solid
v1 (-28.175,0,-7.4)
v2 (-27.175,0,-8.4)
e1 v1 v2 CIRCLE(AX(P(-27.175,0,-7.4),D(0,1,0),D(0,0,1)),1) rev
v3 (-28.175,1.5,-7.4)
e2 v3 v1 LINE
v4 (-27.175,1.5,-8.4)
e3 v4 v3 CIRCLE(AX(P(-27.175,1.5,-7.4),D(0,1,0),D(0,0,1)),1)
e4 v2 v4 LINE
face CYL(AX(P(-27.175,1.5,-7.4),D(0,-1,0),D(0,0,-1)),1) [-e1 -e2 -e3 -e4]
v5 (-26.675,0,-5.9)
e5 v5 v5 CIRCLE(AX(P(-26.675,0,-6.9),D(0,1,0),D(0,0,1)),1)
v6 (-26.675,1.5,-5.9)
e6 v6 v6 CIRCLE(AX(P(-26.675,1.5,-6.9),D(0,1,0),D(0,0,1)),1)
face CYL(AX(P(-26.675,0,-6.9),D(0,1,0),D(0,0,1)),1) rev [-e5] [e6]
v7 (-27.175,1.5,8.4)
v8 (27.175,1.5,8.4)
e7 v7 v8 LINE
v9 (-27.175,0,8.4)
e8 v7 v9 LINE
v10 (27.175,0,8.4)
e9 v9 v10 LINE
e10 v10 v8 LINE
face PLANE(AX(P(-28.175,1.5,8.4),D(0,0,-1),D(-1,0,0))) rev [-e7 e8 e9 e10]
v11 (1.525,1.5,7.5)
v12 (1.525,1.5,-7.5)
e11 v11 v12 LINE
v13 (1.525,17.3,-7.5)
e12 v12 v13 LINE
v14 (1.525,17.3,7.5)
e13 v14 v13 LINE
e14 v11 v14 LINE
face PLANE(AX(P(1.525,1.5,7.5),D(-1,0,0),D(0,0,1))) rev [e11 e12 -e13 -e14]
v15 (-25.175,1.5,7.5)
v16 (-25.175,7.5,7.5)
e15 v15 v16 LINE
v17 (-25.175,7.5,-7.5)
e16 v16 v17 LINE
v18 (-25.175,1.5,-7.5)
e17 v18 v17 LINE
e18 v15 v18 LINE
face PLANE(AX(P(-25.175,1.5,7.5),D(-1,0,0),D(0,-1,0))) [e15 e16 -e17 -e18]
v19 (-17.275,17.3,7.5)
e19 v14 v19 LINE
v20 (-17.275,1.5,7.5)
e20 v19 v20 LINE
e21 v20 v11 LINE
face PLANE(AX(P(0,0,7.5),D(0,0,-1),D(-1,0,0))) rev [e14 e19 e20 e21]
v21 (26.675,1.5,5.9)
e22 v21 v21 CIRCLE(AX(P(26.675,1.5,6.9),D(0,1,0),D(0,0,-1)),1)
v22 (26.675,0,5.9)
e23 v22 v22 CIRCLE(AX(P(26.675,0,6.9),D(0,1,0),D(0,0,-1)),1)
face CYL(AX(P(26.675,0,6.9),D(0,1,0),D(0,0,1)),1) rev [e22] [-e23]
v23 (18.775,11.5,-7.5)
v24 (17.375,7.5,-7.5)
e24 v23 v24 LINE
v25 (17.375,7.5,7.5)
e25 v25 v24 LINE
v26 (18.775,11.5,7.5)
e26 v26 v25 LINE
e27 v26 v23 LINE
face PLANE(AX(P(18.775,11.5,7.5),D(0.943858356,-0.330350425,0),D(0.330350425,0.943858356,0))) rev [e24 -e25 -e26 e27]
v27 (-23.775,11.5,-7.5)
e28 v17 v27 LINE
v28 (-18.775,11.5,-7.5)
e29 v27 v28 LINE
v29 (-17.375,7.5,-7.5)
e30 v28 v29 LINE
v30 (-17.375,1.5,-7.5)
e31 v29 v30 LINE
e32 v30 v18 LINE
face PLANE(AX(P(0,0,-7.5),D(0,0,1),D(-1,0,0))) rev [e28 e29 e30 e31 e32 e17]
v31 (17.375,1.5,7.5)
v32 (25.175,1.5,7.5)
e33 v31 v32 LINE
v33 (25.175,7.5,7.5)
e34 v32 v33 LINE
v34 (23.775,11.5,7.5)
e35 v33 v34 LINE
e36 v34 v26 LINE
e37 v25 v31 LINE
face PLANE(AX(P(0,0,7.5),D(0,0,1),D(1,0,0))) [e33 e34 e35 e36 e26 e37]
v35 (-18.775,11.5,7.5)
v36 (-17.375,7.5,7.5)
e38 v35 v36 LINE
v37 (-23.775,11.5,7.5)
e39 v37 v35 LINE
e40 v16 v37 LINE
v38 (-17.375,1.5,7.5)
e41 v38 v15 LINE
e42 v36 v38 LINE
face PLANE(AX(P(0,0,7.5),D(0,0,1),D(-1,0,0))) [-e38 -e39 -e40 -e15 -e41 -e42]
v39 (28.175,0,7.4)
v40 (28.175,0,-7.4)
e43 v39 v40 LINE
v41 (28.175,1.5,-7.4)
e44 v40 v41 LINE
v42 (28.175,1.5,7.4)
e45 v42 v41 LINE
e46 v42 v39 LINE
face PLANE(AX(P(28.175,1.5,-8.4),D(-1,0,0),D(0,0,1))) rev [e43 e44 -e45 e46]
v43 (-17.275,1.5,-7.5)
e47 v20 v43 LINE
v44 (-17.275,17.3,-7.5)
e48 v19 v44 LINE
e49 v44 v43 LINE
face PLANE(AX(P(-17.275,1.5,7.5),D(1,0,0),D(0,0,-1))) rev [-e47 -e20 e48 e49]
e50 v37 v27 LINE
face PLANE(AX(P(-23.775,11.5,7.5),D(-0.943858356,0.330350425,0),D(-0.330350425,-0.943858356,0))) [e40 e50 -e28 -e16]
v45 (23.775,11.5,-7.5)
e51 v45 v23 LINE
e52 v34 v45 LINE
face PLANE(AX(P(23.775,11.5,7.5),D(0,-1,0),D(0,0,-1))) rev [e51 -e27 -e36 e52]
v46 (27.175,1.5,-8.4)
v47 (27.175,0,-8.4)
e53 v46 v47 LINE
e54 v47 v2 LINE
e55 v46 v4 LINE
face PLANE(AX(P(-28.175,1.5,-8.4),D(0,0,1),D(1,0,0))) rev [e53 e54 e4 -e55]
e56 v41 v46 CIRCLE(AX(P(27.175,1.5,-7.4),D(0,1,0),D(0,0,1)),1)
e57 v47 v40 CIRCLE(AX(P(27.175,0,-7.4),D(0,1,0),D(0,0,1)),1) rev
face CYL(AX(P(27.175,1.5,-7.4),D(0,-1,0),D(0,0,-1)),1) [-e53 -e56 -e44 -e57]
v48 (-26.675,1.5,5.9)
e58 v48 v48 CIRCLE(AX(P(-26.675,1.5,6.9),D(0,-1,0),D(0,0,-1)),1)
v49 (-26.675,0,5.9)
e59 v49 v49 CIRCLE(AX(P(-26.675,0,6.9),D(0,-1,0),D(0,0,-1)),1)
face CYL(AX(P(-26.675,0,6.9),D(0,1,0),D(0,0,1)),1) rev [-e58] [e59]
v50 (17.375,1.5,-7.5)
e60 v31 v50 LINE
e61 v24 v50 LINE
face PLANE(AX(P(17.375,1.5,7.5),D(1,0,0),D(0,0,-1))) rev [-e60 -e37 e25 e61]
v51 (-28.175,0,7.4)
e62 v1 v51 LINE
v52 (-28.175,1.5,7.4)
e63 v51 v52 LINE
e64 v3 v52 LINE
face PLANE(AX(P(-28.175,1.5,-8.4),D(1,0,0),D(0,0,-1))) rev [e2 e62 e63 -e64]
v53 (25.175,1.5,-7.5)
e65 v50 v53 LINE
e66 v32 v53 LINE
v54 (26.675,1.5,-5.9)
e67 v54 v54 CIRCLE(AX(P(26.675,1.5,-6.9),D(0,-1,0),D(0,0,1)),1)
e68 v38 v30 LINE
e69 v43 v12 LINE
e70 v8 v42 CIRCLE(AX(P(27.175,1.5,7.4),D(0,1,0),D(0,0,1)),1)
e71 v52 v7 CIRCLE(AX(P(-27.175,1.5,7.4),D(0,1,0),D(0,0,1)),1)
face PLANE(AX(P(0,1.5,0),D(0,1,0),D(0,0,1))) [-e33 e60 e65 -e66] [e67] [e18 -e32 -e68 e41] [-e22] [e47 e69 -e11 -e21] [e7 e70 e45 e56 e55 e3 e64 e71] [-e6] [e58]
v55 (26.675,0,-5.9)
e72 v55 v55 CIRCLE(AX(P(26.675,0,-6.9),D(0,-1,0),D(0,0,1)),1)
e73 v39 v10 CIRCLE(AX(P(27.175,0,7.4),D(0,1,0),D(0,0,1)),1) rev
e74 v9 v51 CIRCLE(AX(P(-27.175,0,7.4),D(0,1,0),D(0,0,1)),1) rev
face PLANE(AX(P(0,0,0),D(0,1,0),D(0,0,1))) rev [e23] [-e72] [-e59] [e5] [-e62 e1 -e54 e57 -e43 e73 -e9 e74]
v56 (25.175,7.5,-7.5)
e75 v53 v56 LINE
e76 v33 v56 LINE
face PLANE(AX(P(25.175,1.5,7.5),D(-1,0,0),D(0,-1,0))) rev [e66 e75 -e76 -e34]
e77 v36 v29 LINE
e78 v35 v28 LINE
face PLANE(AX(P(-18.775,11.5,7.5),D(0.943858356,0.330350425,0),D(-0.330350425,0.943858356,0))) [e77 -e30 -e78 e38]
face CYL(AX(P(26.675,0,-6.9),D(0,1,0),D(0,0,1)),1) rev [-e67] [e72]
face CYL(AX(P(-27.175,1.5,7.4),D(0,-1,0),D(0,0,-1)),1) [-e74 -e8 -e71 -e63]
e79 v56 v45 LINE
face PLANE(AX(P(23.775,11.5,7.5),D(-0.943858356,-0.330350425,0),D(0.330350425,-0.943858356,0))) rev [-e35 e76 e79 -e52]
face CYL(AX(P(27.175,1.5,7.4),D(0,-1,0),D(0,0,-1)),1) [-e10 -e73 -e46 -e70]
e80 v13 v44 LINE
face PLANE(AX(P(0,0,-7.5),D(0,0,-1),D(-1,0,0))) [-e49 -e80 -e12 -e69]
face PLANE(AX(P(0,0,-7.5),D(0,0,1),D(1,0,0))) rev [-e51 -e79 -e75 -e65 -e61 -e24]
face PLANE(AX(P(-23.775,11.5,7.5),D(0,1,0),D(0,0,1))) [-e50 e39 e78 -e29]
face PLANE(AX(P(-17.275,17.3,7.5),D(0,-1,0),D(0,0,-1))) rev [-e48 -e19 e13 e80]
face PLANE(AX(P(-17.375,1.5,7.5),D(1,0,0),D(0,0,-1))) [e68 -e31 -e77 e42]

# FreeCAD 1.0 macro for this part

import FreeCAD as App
import Part
import Sketcher
from FreeCAD import Vector


def edges_at(feature, points):
    """Names of the edges that pass closest to the given points."""
    edges = feature.Shape.Edges
    near = lambda p: min(range(len(edges)), key=lambda i: edges[i].distToShape(Part.Vertex(*p))[0])
    return sorted({f"Edge{near(p) + 1}" for p in points})


def add_polygon(sketch, points):
    """Adds a closed chain of lines whose ends are joined by coincident constraints."""
    first, n = sketch.GeometryCount, len(points)
    for a, b in zip(points, points[1:] + points[:1]):
        sketch.addGeometry(Part.LineSegment(App.Vector(*a, 0), App.Vector(*b, 0)), False)
    for i in range(n):
        sketch.addConstraint(Sketcher.Constraint("Coincident", first + i, 2, first + (i + 1) % n, 1))

doc = App.newDocument("Part")
body = doc.addObject("PartDesign::Body", "Body")

sketch1 = body.newObject("Sketcher::SketchObject", "Sketch")
sketch1.AttachmentSupport = (doc.getObject("XZ_Plane"), [""])
sketch1.MapMode = "FlatFace"
add_polygon(sketch1, [(-28, -8), (-28, 8), (28, 8), (28, -8)])
sketch1.addConstraint([
    Sketcher.Constraint("Vertical", 0),
    Sketcher.Constraint("Horizontal", 1),
    Sketcher.Constraint("Vertical", 2),
    Sketcher.Constraint("Horizontal", 3),
    Sketcher.Constraint("Symmetric", 0, 2, 2, 2, -1, 1),
    Sketcher.Constraint("DistanceY", 0, 1, 0, 2, 16.8),
    Sketcher.Constraint("DistanceX", 1, 1, 1, 2, 56.35),
])
pad1 = body.newObject("PartDesign::Pad", "Pad")
pad1.Profile = sketch1
pad1.Length = 1.5
pad1.Reversed = True

sketch2 = body.newObject("Sketcher::SketchObject", "Sketch001")
sketch2.AttachmentSupport = (doc.getObject("XZ_Plane"), [""])
sketch2.MapMode = "FlatFace"
sketch2.AttachmentOffset = App.Placement(Vector(0, 0, -1.5), App.Rotation())
sketch2.addGeometry(Part.Circle(Vector(-26.7, -6.9, 0), Vector(0, 0, 1), 1), False)
sketch2.addConstraint([
    Sketcher.Constraint("Diameter", 0, 2.0),
    Sketcher.Constraint("DistanceY", 0, 3, -1, 1, 6.9),
    Sketcher.Constraint("DistanceX", 0, 3, -1, 1, 26.675),
])
pocket1 = body.newObject("PartDesign::Pocket", "Pocket")
pocket1.Profile = sketch2
pocket1.Type = "ThroughAll"
pocket1.Reversed = True
doc.recompute()

mirrored = body.newObject("PartDesign::Mirrored", "Mirrored")
mirrored.Originals = [pocket1]
mirrored.MirrorPlane = (doc.getObject("XY_Plane"), [""])
body.Tip = mirrored
doc.recompute()

mirrored2 = body.newObject("PartDesign::Mirrored", "Mirrored001")
mirrored2.Originals = [pocket1]
mirrored2.MirrorPlane = (doc.getObject("YZ_Plane"), [""])
body.Tip = mirrored2

sketch3 = body.newObject("Sketcher::SketchObject", "Sketch002")
sketch3.AttachmentSupport = (doc.getObject("XZ_Plane"), [""])
sketch3.MapMode = "FlatFace"
sketch3.AttachmentOffset = App.Placement(Vector(0, 0, -1.5), App.Rotation())
sketch3.addGeometry(Part.Circle(Vector(26.7, 6.9, 0), Vector(0, 0, 1), 1), False)
sketch3.addConstraint([
    Sketcher.Constraint("Diameter", 0, 2.0),
    Sketcher.Constraint("DistanceY", -1, 1, 0, 3, 6.9),
    Sketcher.Constraint("DistanceX", -1, 1, 0, 3, 26.675),
])
pocket2 = body.newObject("PartDesign::Pocket", "Pocket001")
pocket2.Profile = sketch3
pocket2.Type = "ThroughAll"
pocket2.Reversed = True
doc.recompute()

fillet = body.newObject("PartDesign::Fillet", "Fillet")
fillet.Base = (pocket2, edges_at(pocket2, [
    (28.175, 0.75, 8.4),
    (-28.175, 0.75, 8.4),
    (-28.175, 0.75, -8.4),
    (28.175, 0.75, -8.4),
]))
fillet.Radius = 1

sketch4 = body.newObject("Sketcher::SketchObject", "Sketch003")
sketch4.AttachmentSupport = (doc.getObject("XY_Plane"), [""])
sketch4.MapMode = "FlatFace"
add_polygon(sketch4, [(18.8, 11.5), (17.4, 7.5), (17.4, 1.5), (25.2, 1.5), (25.2, 7.5), (23.8, 11.5)])
sketch4.addConstraint([
    Sketcher.Constraint("Vertical", 1),
    Sketcher.Constraint("Horizontal", 2),
    Sketcher.Constraint("Vertical", 3),
    Sketcher.Constraint("Horizontal", 5),
    Sketcher.Constraint("Horizontal", 0, 2, 3, 2),
    Sketcher.Constraint("Equal", 0, 4),
    Sketcher.Constraint("DistanceX", 5, 2, 5, 1, 5.0),
    Sketcher.Constraint("DistanceY", 1, 2, 1, 1, 6.0),
    Sketcher.Constraint("DistanceX", 2, 1, 2, 2, 7.8),
    Sketcher.Constraint("DistanceY", 3, 2, 4, 2, 4.0),
    Sketcher.Constraint("DistanceY", -1, 1, 0, 2, 7.5),
    Sketcher.Constraint("DistanceX", -1, 1, 0, 2, 17.375),
])
pad2 = body.newObject("PartDesign::Pad", "Pad001")
pad2.Profile = sketch4
pad2.Length = 15
pad2.Midplane = True
doc.recompute()

mirrored3 = body.newObject("PartDesign::Mirrored", "Mirrored002")
mirrored3.Originals = [pad2]
mirrored3.MirrorPlane = (doc.getObject("YZ_Plane"), [""])
body.Tip = mirrored3

sketch5 = body.newObject("Sketcher::SketchObject", "Sketch004")
sketch5.AttachmentSupport = (doc.getObject("XY_Plane"), [""])
sketch5.MapMode = "FlatFace"
add_polygon(sketch5, [(-17, 17), (-17, 2), (2, 2), (2, 17)])
sketch5.addConstraint([
    Sketcher.Constraint("Vertical", 0),
    Sketcher.Constraint("Horizontal", 1),
    Sketcher.Constraint("Vertical", 2),
    Sketcher.Constraint("Horizontal", 3),
    Sketcher.Constraint("DistanceX", 1, 1, 1, 2, 18.8),
    Sketcher.Constraint("DistanceY", 0, 2, 0, 1, 15.8),
    Sketcher.Constraint("DistanceY", -1, 1, 0, 2, 1.5),
    Sketcher.Constraint("DistanceX", 0, 2, -1, 1, 17.275),
])
pad3 = body.newObject("PartDesign::Pad", "Pad002")
pad3.Profile = sketch5
pad3.Length = 15
pad3.Midplane = True

doc.recompute()
